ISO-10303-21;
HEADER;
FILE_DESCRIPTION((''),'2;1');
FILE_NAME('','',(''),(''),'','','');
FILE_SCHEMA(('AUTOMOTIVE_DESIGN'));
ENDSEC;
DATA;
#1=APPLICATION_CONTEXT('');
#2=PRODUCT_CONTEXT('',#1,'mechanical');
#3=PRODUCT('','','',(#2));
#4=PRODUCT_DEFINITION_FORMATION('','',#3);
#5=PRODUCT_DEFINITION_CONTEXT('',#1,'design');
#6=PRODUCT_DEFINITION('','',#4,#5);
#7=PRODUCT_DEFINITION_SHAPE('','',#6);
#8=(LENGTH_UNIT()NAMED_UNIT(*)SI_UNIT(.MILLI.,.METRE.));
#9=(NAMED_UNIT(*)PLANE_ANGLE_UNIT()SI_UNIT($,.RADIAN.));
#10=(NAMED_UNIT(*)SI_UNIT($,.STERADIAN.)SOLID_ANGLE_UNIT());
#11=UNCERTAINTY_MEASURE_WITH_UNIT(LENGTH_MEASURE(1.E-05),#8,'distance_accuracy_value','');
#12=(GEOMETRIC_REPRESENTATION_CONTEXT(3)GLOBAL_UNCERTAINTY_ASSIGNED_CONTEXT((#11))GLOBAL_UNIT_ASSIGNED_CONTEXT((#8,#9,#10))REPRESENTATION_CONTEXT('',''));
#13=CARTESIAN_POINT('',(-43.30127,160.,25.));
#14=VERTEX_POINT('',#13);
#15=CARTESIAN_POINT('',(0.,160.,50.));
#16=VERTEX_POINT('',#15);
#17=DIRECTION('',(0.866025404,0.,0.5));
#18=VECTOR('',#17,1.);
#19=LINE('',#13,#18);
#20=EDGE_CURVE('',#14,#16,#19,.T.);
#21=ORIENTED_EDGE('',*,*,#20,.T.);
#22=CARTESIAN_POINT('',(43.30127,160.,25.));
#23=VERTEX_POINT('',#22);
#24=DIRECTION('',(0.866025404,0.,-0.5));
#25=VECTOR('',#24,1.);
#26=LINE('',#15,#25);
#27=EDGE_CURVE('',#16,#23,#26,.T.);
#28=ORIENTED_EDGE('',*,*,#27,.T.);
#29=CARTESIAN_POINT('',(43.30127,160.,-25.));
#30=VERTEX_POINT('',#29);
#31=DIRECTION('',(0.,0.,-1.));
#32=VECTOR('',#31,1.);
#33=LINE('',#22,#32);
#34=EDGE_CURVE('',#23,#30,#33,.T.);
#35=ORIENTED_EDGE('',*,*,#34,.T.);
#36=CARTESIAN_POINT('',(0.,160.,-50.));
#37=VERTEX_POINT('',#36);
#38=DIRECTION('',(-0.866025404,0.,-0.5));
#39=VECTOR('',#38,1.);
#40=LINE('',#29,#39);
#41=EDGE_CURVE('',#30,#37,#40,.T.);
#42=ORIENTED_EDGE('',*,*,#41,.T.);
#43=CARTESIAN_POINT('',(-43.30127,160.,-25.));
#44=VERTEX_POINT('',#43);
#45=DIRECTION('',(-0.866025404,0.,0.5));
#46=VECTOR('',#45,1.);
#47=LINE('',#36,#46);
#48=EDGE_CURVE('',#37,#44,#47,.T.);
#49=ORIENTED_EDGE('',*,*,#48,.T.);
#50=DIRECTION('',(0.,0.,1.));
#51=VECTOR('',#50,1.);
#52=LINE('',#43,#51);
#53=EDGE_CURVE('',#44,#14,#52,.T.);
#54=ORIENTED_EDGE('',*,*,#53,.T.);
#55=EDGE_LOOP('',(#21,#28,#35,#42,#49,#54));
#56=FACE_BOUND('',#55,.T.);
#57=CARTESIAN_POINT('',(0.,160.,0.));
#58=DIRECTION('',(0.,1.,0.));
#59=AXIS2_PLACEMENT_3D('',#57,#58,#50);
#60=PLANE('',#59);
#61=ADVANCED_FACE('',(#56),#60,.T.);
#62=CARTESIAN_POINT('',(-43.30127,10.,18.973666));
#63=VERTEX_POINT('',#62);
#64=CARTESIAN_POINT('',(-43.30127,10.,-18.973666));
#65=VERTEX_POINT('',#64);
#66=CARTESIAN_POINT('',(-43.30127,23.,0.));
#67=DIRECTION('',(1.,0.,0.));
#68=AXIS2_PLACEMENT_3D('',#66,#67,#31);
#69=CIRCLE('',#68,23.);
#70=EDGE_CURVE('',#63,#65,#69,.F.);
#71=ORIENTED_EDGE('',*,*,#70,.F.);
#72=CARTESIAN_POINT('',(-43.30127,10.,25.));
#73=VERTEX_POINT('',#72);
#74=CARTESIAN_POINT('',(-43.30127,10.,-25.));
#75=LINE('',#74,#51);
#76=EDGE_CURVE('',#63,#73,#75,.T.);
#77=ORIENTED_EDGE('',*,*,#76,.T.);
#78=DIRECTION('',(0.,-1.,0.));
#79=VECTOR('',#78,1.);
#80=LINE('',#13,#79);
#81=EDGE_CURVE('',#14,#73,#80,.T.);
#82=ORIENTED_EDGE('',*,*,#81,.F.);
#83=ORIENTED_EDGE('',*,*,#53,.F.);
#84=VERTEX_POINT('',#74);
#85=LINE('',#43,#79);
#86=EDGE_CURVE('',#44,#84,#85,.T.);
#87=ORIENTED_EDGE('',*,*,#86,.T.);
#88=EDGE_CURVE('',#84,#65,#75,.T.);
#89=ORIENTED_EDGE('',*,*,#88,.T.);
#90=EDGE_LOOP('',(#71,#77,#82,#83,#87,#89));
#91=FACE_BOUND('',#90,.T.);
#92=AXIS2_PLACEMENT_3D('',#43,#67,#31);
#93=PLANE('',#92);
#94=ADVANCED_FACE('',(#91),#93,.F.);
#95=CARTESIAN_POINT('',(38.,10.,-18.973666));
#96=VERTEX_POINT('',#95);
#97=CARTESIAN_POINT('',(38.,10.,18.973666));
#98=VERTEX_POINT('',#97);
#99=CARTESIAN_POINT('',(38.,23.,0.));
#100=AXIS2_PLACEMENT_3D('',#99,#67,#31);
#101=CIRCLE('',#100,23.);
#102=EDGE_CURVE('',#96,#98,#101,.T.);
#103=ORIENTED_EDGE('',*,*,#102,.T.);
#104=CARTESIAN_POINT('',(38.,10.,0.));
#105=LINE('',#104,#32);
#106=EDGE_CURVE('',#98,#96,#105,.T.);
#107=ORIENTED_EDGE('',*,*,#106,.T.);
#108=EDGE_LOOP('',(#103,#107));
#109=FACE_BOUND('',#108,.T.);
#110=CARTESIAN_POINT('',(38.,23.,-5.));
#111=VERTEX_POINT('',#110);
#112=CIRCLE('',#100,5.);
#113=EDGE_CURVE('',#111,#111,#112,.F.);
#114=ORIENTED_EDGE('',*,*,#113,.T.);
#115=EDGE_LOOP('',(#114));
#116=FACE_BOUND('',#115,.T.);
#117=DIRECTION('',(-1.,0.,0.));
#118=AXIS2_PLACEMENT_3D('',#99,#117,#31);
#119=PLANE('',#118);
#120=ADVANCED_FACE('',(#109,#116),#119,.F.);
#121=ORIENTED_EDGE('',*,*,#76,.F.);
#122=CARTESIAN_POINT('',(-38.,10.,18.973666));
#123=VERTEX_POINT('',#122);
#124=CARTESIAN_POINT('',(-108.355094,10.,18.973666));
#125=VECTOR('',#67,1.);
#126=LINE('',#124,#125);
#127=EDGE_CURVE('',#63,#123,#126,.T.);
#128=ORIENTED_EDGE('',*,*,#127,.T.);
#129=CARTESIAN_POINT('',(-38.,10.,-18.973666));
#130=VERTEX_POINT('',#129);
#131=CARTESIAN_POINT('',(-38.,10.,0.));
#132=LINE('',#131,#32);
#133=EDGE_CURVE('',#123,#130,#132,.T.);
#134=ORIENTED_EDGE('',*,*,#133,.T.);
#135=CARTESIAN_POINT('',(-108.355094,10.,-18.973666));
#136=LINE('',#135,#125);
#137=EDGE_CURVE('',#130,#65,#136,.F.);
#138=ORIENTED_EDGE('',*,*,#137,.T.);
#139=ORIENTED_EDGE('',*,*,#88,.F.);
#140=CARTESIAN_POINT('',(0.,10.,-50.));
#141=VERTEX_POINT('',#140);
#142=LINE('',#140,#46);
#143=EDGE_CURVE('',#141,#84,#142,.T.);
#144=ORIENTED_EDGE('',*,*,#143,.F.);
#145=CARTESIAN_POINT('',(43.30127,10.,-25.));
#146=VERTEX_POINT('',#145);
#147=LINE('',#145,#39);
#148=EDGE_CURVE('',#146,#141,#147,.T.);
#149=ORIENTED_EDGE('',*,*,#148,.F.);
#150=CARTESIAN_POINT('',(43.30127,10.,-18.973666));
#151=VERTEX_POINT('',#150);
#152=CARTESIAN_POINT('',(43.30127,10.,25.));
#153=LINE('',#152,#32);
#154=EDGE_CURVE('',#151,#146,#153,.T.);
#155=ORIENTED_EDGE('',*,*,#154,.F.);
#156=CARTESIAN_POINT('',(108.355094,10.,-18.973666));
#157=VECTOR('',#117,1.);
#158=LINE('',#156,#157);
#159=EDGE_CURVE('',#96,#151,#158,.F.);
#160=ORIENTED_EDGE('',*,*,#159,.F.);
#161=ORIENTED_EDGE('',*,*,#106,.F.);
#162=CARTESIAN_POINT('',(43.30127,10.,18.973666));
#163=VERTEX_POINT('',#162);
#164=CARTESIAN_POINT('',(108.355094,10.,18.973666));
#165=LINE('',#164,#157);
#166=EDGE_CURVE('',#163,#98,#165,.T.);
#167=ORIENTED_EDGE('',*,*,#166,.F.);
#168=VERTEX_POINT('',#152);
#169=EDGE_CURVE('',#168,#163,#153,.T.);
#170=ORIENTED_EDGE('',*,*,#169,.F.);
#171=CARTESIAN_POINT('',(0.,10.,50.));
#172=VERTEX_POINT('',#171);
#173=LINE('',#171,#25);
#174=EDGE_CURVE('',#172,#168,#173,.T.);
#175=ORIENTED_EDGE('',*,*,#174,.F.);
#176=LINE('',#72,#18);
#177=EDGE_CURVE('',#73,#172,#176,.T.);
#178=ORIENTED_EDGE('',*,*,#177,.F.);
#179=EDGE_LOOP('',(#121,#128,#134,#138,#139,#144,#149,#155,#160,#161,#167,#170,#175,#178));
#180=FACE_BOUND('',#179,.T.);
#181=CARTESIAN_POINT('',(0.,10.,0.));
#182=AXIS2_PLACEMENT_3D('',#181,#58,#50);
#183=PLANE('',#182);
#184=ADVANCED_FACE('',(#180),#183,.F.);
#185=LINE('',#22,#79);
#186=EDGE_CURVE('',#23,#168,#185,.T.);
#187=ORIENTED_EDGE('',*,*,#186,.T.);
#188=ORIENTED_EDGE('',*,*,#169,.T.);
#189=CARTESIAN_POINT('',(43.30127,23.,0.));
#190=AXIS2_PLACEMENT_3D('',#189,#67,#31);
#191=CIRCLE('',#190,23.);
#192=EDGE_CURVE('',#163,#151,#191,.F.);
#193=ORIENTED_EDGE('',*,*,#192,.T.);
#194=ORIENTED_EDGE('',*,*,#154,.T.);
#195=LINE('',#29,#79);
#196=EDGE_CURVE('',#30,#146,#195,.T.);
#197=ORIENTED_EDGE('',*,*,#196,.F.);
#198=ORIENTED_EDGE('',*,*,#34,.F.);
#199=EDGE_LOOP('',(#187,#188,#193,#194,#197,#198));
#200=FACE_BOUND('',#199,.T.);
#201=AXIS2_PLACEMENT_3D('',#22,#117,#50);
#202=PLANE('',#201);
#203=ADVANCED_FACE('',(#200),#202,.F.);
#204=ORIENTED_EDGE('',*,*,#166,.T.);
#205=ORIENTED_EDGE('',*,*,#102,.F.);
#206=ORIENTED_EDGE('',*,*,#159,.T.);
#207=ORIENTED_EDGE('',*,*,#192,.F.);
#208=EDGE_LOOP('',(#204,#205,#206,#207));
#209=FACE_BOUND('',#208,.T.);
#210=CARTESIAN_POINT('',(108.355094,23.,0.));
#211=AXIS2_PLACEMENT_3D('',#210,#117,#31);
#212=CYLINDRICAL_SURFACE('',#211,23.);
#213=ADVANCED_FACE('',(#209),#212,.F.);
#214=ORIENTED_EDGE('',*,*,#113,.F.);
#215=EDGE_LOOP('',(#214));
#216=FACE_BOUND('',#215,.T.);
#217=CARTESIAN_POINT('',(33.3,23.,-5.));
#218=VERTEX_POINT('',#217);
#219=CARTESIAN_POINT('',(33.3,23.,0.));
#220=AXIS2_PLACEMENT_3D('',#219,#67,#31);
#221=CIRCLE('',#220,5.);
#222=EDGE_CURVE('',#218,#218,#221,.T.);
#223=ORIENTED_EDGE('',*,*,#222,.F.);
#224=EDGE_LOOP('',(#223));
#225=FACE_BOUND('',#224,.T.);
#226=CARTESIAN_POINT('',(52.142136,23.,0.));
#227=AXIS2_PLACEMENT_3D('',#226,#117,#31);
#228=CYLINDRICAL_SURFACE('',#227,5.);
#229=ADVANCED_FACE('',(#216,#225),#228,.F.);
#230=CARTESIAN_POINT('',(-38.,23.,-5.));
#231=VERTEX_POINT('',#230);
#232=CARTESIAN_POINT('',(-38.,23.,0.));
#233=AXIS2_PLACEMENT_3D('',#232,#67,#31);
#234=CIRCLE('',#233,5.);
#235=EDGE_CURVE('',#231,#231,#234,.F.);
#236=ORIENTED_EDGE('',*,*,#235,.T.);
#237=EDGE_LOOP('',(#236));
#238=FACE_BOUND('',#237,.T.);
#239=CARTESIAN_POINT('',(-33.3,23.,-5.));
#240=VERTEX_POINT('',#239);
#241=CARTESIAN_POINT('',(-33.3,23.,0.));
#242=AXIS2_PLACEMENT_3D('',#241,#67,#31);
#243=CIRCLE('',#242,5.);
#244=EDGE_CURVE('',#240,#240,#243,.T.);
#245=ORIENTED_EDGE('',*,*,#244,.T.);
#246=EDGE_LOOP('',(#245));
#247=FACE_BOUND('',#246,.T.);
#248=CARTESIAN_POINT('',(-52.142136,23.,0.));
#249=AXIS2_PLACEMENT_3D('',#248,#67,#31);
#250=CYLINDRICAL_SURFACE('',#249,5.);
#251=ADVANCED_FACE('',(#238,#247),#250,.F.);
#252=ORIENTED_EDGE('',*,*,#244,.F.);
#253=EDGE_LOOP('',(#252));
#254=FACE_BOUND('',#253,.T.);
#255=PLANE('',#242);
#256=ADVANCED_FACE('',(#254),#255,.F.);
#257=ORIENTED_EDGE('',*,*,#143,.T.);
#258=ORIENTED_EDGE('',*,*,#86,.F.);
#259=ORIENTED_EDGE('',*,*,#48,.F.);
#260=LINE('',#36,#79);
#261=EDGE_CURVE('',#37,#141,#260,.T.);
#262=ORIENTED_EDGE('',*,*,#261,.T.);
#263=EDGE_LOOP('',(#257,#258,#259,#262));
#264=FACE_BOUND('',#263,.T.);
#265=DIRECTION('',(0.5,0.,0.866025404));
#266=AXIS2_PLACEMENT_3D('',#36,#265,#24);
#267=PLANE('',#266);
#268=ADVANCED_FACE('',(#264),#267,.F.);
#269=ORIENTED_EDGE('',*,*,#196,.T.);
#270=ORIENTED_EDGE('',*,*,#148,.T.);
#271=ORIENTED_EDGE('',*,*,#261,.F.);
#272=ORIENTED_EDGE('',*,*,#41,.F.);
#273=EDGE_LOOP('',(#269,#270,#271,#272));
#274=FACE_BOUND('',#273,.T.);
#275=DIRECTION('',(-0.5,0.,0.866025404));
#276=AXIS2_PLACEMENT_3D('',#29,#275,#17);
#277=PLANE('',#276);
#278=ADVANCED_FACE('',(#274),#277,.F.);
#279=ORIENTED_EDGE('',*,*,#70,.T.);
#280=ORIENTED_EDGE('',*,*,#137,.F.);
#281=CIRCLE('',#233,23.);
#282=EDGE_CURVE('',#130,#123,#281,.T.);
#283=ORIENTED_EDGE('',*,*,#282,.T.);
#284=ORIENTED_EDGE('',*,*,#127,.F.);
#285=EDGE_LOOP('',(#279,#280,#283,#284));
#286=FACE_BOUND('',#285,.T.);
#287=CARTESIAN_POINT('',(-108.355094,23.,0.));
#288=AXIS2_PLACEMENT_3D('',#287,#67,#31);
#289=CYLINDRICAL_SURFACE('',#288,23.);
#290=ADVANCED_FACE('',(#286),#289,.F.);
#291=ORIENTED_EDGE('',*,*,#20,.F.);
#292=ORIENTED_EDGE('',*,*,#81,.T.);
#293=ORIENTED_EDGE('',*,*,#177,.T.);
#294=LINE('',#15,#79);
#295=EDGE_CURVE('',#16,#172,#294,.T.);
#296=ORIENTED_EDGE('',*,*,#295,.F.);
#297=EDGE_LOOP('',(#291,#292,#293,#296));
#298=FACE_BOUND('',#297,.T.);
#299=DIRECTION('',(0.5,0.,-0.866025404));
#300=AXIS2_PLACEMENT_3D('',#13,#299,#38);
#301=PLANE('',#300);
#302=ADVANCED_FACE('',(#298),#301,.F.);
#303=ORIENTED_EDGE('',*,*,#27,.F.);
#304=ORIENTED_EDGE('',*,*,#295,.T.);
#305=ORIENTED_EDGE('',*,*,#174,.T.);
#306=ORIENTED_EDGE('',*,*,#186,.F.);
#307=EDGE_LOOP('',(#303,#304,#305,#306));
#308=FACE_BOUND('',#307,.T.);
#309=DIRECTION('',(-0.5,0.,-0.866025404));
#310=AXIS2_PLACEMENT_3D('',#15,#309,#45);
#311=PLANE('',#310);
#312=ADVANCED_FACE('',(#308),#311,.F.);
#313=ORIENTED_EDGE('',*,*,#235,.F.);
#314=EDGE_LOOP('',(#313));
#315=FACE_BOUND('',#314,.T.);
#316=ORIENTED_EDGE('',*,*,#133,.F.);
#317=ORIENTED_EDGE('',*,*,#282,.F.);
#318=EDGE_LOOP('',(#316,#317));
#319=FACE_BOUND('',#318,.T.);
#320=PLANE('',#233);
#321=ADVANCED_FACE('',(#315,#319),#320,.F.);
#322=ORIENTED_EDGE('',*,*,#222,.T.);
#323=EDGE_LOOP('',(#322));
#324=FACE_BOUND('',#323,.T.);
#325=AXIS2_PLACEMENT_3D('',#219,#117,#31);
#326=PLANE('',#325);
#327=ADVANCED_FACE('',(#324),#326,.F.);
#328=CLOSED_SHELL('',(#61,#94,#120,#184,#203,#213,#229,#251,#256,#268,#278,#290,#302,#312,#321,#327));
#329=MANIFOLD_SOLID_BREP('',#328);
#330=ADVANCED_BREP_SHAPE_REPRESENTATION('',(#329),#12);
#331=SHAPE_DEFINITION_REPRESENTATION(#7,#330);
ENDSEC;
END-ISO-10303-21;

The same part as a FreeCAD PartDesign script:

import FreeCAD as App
import Part
import Sketcher
Q = App.Units.Quantity


def add_polygon(sketch, points):
    """Adds a closed chain of lines whose ends are joined by coincident constraints."""
    first, n = sketch.GeometryCount, len(points)
    for a, b in zip(points, points[1:] + points[:1]):
        sketch.addGeometry(Part.LineSegment(App.Vector(*a, 0), App.Vector(*b, 0)), False)
    for i in range(n):
        sketch.addConstraint(Sketcher.Constraint("Coincident", first + i, 2, first + (i + 1) % n, 1))

doc = App.newDocument("Part")
body = doc.addObject("PartDesign::Body", "Body")

sketch1 = body.newObject("Sketcher::SketchObject", "Sketch")
sketch1.AttachmentSupport = (doc.getObject("XZ_Plane"), [""])
sketch1.MapMode = "FlatFace"
sketch1.AttachmentOffset = App.Placement(App.Vector(0, 0, -10), App.Rotation())
add_polygon(sketch1, [(0, -50), (-43, -25), (-43, 25), (0, 50), (43, 25), (43, -25)])
sketch1.addConstraint([
    Sketcher.Constraint("Vertical", 1),
    Sketcher.Constraint("Vertical", 4),
    Sketcher.Constraint("Symmetric", 0, 2, 3, 2, -1, 1),
    Sketcher.Constraint("Symmetric", 2, 2, 5, 2, -1, 1),
    Sketcher.Constraint("PointOnObject", 2, 2, -2),
    Sketcher.Constraint("Parallel", 2, 5),
    Sketcher.Constraint("Horizontal", 1, 2, 3, 2),
    Sketcher.Constraint("DistanceY", 1, 1, 1, 2, Q("50 mm")),
    Sketcher.Constraint("Angle", 0, Q("150 deg")),
    Sketcher.Constraint("Distance", 0, Q("50 mm")),
])
pad1 = body.newObject("PartDesign::Pad", "Pad")
pad1.Profile = sketch1
pad1.Length = 150
pad1.Reversed = True

sketch2 = body.newObject("Sketcher::SketchObject", "Sketch001")
sketch2.AttachmentSupport = (doc.getObject("YZ_Plane"), [""])
sketch2.MapMode = "FlatFace"
sketch2.AttachmentOffset = App.Placement(App.Vector(0, 0, -38), App.Rotation())
sketch2.addGeometry(Part.Circle(App.Vector(23, 0, 0), App.Vector(0, 0, 1), 23), False)
sketch2.addConstraint([
    Sketcher.Constraint("PointOnObject", 0, 3, -1),
    Sketcher.Constraint("Diameter", 0, Q("46 mm")),
    Sketcher.Constraint("DistanceX", -1, 1, 0, 3, Q("23 mm")),
])
pocket1 = body.newObject("PartDesign::Pocket", "Pocket")
pocket1.Profile = sketch2
pocket1.Length = 81.30127

sketch3 = body.newObject("Sketcher::SketchObject", "Sketch002")
sketch3.AttachmentSupport = (doc.getObject("YZ_Plane"), [""])
sketch3.MapMode = "FlatFace"
sketch3.AttachmentOffset = App.Placement(App.Vector(0, 0, -33.3), App.Rotation())
sketch3.addGeometry(Part.Circle(App.Vector(23, 0, 0), App.Vector(0, 0, 1), 5), False)
sketch3.addConstraint([
    Sketcher.Constraint("PointOnObject", 0, 3, -1),
    Sketcher.Constraint("Diameter", 0, Q("10 mm")),
    Sketcher.Constraint("DistanceX", -1, 1, 0, 3, Q("23 mm")),
])
pocket2 = body.newObject("PartDesign::Pocket", "Pocket001")
pocket2.Profile = sketch3
pocket2.Length = 4.7
doc.recompute()

mirrored = body.newObject("PartDesign::Mirrored", "Mirrored")
mirrored.Originals = [pocket1, pocket2]
mirrored.MirrorPlane = (doc.getObject("YZ_Plane"), [""])
body.Tip = mirrored

doc.recompute()
